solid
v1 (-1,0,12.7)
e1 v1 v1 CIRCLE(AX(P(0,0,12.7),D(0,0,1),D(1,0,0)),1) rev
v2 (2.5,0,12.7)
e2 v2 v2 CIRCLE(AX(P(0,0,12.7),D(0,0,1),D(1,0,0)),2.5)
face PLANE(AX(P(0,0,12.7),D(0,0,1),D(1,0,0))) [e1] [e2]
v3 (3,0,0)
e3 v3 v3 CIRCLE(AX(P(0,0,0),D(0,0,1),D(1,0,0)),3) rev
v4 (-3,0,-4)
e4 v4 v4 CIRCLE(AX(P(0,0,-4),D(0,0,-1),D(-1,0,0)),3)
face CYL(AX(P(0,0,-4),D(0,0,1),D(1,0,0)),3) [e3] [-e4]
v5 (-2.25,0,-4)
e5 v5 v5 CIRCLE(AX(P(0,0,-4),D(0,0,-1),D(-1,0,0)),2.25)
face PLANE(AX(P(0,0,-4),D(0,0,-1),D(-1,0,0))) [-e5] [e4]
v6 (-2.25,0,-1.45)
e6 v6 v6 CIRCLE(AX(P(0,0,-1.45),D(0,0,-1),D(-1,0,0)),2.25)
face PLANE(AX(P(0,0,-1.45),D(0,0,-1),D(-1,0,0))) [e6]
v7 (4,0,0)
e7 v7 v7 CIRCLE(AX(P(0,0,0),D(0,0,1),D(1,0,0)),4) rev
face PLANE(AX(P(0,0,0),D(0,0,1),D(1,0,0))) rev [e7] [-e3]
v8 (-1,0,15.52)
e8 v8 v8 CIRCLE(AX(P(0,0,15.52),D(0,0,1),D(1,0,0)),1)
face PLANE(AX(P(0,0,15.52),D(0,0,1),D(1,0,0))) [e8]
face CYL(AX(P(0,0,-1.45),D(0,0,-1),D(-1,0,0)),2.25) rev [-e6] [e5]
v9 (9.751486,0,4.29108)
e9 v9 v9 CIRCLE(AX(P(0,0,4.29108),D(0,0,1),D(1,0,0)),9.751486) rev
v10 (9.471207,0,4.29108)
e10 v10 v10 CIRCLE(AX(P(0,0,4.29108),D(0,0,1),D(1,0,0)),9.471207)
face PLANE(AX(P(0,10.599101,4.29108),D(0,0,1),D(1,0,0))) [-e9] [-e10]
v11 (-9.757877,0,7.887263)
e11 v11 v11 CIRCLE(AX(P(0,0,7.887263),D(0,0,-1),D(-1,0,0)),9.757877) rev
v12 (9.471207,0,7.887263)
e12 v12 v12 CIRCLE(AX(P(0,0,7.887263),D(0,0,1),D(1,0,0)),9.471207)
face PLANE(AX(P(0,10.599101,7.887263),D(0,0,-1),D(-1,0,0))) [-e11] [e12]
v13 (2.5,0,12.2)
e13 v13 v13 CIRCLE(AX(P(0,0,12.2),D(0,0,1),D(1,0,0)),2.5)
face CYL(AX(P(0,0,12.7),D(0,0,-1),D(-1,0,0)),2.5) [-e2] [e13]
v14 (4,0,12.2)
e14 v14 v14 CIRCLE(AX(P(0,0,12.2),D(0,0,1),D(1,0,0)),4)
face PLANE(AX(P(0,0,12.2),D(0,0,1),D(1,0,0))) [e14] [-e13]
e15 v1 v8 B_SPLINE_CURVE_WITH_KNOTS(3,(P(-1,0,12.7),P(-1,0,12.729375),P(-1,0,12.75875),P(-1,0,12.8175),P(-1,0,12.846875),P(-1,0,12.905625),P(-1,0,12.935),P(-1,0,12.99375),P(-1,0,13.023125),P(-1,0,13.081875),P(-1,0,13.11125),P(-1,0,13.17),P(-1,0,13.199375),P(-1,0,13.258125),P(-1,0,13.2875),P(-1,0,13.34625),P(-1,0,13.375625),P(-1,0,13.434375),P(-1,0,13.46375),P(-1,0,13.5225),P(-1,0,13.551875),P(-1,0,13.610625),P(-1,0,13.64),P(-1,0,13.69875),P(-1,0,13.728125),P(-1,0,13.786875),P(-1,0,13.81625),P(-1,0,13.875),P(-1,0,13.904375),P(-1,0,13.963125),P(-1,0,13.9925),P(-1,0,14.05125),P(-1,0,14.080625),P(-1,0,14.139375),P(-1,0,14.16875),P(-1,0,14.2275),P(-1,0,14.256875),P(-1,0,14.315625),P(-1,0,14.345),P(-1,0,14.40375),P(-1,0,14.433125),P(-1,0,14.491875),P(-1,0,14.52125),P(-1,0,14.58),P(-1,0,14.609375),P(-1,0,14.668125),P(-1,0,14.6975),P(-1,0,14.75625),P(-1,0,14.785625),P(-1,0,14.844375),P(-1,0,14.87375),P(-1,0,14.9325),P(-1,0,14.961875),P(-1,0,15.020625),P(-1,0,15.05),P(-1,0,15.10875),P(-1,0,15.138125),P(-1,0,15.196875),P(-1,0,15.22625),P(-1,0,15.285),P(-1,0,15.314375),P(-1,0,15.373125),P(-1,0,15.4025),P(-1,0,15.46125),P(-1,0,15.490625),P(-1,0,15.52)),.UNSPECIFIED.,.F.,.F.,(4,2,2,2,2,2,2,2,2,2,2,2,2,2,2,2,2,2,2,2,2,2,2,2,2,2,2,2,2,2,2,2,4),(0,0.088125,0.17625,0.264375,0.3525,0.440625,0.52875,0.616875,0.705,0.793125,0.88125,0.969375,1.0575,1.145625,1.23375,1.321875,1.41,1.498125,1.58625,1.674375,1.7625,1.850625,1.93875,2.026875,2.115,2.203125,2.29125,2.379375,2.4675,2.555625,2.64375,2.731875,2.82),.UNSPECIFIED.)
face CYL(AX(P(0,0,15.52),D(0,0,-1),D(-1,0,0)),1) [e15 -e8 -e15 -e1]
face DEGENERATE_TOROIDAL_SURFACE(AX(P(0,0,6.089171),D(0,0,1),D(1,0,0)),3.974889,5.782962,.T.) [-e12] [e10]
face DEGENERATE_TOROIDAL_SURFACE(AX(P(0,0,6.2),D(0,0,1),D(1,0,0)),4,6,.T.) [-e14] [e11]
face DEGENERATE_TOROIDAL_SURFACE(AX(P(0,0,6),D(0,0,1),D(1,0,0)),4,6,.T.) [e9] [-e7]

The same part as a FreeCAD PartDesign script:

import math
import FreeCAD as App
import Part
import Sketcher
Q = App.Units.Quantity


def edges_at(feature, points):
    """Names of the edges that pass closest to the given points."""
    edges = feature.Shape.Edges
    near = lambda p: min(range(len(edges)), key=lambda i: edges[i].distToShape(Part.Vertex(*p))[0])
    return sorted({f"Edge{near(p) + 1}" for p in points})

doc = App.newDocument("Part")
body = doc.addObject("PartDesign::Body", "Body")

sketch1 = body.newObject("Sketcher::SketchObject", "Sketch")
sketch1.AttachmentSupport = (doc.getObject("XY_Plane"), [""])
sketch1.MapMode = "FlatFace"
sketch1.addGeometry(Part.Circle(App.Vector(0, 0, 0), App.Vector(0, 0, 1), 10), False)
sketch1.addConstraint(Sketcher.Constraint("Coincident", 0, 3, -1, 1))
sketch1.addConstraint(Sketcher.Constraint("Diameter", 0, Q("20 mm")))
pad1 = body.newObject("PartDesign::Pad", "Pad")
pad1.Profile = sketch1
pad1.Length = 12.2

sketch2 = body.newObject("Sketcher::SketchObject", "Sketch001")
sketch2.AttachmentSupport = (doc.getObject("XY_Plane"), [""])
sketch2.MapMode = "FlatFace"
sketch2.AttachmentOffset = App.Placement(App.Vector(0, 0, 12.2), App.Rotation())
sketch2.addGeometry(Part.Circle(App.Vector(0, 0, 0), App.Vector(0, 0, 1), 2.5), False)
sketch2.addConstraint(Sketcher.Constraint("Coincident", 0, 3, -1, 1))
sketch2.addConstraint(Sketcher.Constraint("Diameter", 0, Q("5 mm")))
pad2 = body.newObject("PartDesign::Pad", "Pad001")
pad2.Profile = sketch2
pad2.Length = 0.5

sketch3 = body.newObject("Sketcher::SketchObject", "Sketch002")
sketch3.AttachmentSupport = (doc.getObject("XY_Plane"), [""])
sketch3.MapMode = "FlatFace"
sketch3.AttachmentOffset = App.Placement(App.Vector(0, 0, 12.2), App.Rotation())
sketch3.addGeometry(Part.Circle(App.Vector(0, 0, 0), App.Vector(0, 0, 1), 1), False)
sketch3.addConstraint(Sketcher.Constraint("Coincident", 0, 3, -1, 1))
sketch3.addConstraint(Sketcher.Constraint("Diameter", 0, Q("2 mm")))
pad3 = body.newObject("PartDesign::Pad", "Pad002")
pad3.Profile = sketch3
pad3.Length = 3.32
doc.recompute()

fillet = body.newObject("PartDesign::Fillet", "Fillet")
fillet.Base = (pad3, edges_at(pad3, [(-10, 0, 0), (-10, 0, 12.2)]))
fillet.Radius = 6

sketch4 = body.newObject("Sketcher::SketchObject", "Sketch003")
sketch4.AttachmentSupport = (doc.getObject("XY_Plane"), [""])
sketch4.MapMode = "FlatFace"
sketch4.addGeometry(Part.Circle(App.Vector(0, 0, 0), App.Vector(0, 0, 1), 3), False)
sketch4.addConstraint(Sketcher.Constraint("Coincident", 0, 3, -1, 1))
sketch4.addConstraint(Sketcher.Constraint("Diameter", 0, Q("6 mm")))
pad4 = body.newObject("PartDesign::Pad", "Pad003")
pad4.Profile = sketch4
pad4.Length = 4
pad4.Reversed = True

sketch5 = body.newObject("Sketcher::SketchObject", "Sketch004")
sketch5.AttachmentSupport = (doc.getObject("XY_Plane"), [""])
sketch5.MapMode = "FlatFace"
sketch5.AttachmentOffset = App.Placement(App.Vector(0, 0, -4), App.Rotation())
sketch5.addGeometry(Part.Circle(App.Vector(0, 0, 0), App.Vector(0, 0, 1), 2.2), False)
sketch5.addConstraint(Sketcher.Constraint("Coincident", 0, 3, -1, 1))
sketch5.addConstraint(Sketcher.Constraint("Diameter", 0, Q("4.5 mm")))
pocket1 = body.newObject("PartDesign::Pocket", "Pocket")
pocket1.Profile = sketch5
pocket1.Length = 2.55
pocket1.Reversed = True

sketch6 = body.newObject("Sketcher::SketchObject", "Sketch005")
sketch6.AttachmentSupport = (doc.getObject("YZ_Plane"), [""])
sketch6.MapMode = "FlatFace"
sketch6.addGeometry(Part.LineSegment(App.Vector(10.6, 4.3, 0), App.Vector(10.6, 7.9, 0)), False)
sketch6.addGeometry(Part.LineSegment(App.Vector(10.6, 7.9, 0), App.Vector(9.5, 7.9, 0)), False)
sketch6.addGeometry(Part.ArcOfCircle(Part.Circle(App.Vector(4, 6.1, 0), App.Vector(0, 0, 1), 5.8), math.radians(-18), math.radians(18)), False)
sketch6.addGeometry(Part.LineSegment(App.Vector(9.5, 4.3, 0), App.Vector(10.6, 4.3, 0)), False)
sketch6.addConstraint(Sketcher.Constraint("Coincident", 0, 2, 1, 1))
sketch6.addConstraint(Sketcher.Constraint("Coincident", 1, 2, 2, 2))
sketch6.addConstraint(Sketcher.Constraint("Coincident", 2, 1, 3, 1))
sketch6.addConstraint(Sketcher.Constraint("Coincident", 3, 2, 0, 1))
sketch6.addConstraint(Sketcher.Constraint("Vertical", 0))
sketch6.addConstraint(Sketcher.Constraint("Horizontal", 1))
sketch6.addConstraint(Sketcher.Constraint("Horizontal", 3))
sketch6.addConstraint(Sketcher.Constraint("Vertical", 1, 2, 2, 1))
sketch6.addConstraint(Sketcher.Constraint("Radius", 2, Q("5.782962 mm")))
sketch6.addConstraint(Sketcher.Constraint("DistanceX", -1, 1, 0, 2, Q("10.599101 mm")))
sketch6.addConstraint(Sketcher.Constraint("DistanceX", 1, 2, 1, 1, Q("1.127894 mm")))
sketch6.addConstraint(Sketcher.Constraint("DistanceY", 0, 1, 0, 2, Q("3.596183 mm")))
sketch6.addConstraint(Sketcher.Constraint("DistanceY", -1, 1, 2, 3, Q("6.089171 mm")))
groove = body.newObject("PartDesign::Groove", "Groove")
groove.Profile = sketch6
groove.ReferenceAxis = (sketch6, ["V_Axis"])
groove.Angle = 360

doc.recompute()
